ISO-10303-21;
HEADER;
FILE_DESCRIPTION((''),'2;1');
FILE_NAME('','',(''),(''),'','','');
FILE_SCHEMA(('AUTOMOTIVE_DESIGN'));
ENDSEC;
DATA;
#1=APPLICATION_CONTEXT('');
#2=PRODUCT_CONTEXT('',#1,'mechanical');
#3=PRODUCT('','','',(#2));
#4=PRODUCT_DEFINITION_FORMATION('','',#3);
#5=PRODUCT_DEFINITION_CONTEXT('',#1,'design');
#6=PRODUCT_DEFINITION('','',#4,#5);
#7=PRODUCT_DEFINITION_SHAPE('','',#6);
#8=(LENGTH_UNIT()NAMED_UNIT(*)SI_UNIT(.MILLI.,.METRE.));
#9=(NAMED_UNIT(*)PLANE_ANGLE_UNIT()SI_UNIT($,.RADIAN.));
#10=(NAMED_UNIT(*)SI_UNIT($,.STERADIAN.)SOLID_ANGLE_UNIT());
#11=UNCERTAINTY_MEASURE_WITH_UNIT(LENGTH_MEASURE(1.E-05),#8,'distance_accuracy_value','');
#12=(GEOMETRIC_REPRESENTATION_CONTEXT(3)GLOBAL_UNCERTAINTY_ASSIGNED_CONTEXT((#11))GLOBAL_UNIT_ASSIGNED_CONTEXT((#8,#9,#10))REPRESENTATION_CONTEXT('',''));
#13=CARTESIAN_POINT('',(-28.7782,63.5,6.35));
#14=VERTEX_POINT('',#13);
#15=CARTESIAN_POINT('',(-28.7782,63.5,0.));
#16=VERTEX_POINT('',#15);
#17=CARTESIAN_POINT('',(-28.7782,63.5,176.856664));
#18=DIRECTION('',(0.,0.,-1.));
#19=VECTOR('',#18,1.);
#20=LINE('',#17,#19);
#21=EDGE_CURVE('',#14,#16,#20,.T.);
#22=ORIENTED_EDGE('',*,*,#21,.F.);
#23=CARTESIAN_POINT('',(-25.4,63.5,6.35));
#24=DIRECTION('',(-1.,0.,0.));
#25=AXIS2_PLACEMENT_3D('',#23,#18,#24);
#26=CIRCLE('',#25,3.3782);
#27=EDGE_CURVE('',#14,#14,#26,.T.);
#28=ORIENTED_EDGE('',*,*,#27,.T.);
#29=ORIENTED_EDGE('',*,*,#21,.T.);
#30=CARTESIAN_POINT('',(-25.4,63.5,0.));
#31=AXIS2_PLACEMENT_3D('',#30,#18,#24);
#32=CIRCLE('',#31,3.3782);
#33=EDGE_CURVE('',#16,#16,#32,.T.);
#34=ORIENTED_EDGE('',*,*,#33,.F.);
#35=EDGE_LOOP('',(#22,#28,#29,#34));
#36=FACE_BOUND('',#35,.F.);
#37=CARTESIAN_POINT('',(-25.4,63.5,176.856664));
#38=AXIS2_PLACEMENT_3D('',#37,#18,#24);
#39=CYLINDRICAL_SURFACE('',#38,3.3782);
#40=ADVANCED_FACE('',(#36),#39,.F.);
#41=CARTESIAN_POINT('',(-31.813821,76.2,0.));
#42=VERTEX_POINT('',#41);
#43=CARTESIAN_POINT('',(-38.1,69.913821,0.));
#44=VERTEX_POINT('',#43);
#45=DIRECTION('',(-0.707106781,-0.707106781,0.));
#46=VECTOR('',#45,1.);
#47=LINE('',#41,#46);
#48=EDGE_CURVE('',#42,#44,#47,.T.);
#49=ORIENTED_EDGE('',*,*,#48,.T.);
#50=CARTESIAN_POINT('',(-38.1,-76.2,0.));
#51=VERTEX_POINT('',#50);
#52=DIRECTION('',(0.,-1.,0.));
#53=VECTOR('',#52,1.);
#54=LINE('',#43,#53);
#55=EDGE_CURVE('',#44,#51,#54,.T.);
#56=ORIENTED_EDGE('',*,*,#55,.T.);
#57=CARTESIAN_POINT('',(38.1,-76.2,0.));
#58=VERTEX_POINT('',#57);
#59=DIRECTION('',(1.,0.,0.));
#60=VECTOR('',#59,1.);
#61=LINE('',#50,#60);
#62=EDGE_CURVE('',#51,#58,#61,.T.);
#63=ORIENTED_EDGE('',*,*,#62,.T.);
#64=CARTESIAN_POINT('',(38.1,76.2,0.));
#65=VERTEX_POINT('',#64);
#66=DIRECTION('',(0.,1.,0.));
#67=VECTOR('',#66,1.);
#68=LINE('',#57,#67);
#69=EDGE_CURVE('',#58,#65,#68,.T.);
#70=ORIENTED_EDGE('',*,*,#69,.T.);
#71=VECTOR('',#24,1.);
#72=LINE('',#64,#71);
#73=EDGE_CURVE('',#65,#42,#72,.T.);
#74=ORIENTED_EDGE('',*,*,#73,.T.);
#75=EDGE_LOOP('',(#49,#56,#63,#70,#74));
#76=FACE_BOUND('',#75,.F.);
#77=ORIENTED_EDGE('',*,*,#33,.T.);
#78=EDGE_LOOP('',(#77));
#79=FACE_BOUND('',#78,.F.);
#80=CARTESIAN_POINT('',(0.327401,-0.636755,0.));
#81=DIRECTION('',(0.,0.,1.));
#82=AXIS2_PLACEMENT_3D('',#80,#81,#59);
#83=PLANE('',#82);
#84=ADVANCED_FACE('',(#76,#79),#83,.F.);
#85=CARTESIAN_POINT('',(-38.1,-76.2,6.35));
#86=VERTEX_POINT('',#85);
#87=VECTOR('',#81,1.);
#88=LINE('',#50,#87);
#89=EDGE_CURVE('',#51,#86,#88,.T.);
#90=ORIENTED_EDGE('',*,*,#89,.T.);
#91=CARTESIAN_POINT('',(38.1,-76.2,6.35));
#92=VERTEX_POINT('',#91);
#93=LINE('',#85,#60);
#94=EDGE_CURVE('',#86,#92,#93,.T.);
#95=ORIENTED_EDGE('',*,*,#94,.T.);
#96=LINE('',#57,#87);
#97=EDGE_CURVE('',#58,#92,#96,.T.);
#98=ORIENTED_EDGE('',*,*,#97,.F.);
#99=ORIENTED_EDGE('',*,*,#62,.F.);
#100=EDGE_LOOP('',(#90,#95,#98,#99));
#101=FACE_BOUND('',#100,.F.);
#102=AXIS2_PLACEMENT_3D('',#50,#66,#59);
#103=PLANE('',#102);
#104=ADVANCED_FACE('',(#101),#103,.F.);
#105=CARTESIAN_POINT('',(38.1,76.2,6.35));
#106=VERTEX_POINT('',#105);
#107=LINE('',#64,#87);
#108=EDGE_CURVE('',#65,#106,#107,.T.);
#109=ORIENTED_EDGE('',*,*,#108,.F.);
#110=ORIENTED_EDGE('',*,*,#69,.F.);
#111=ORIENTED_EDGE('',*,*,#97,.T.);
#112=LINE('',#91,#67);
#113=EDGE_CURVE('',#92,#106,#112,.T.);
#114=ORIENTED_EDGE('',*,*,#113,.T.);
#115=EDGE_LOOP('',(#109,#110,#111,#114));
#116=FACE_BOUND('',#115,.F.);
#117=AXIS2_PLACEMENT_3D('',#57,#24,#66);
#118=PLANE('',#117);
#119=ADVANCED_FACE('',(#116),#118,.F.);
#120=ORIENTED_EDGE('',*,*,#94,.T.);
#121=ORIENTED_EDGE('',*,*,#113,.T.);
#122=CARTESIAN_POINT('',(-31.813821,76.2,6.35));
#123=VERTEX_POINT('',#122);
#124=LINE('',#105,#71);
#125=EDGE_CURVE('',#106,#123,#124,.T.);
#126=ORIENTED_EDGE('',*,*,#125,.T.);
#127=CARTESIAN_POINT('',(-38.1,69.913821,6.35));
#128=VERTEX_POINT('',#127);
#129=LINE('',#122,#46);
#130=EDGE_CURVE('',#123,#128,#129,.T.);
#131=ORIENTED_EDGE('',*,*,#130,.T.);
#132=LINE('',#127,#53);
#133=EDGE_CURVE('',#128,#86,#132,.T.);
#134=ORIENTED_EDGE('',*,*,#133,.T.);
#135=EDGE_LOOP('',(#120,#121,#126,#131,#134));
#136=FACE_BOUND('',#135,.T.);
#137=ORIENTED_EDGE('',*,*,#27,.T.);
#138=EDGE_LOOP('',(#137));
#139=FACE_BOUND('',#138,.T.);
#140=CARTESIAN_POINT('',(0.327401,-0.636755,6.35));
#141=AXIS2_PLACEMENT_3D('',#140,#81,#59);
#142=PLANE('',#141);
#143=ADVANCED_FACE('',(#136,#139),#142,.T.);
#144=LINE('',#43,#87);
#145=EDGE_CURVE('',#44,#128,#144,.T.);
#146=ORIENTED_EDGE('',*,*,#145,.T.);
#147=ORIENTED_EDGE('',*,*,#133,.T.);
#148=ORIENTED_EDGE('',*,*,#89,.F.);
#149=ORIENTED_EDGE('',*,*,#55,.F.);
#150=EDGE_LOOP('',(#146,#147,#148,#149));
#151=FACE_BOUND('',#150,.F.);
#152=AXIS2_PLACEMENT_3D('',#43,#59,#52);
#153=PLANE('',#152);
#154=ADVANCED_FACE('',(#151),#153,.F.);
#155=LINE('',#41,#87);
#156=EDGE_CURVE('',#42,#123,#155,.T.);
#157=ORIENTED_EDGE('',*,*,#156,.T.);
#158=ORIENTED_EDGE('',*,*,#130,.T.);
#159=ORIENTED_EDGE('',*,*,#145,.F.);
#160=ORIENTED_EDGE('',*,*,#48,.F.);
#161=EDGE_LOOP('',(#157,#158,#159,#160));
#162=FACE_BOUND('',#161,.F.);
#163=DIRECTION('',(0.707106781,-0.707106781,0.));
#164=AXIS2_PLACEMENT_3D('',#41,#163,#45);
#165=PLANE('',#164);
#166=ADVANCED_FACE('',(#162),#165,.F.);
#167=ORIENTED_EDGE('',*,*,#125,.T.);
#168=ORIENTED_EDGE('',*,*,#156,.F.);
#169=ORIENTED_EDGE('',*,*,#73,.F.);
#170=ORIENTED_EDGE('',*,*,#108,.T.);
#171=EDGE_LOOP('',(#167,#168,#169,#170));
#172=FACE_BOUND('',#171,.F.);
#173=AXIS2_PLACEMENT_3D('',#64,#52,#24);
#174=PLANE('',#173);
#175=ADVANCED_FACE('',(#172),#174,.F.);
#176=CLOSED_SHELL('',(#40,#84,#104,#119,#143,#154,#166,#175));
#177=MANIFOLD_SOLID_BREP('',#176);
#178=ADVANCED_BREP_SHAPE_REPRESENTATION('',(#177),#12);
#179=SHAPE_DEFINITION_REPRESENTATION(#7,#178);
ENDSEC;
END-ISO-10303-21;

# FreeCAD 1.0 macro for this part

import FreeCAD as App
import Part
import Sketcher
from FreeCAD import Vector
Q = App.Units.Quantity

doc = App.newDocument("Part")
params = doc.addObject("Spreadsheet::Sheet", "Params")
for row, (alias, value) in enumerate([
    ("sketch1_width", "3 in"),
    ("sketch1_height", "6 in"),
    ("sketch1_length", "0.35 in"),
    ("pad1_length", "0.25 in"),
    ("sketch2_diameter", "0.266 in"),
    ("hole_diameter", "0.266 in"),
], start=1):
    params.set(f"A{row}", alias)
    params.set(f"B{row}", "=" + value)
    params.setAlias(f"B{row}", alias)

body = doc.addObject("PartDesign::Body", "Body")

sketch1 = body.newObject("Sketcher::SketchObject", "Sketch")
sketch1.AttachmentSupport = (doc.getObject("XY_Plane"), [""])
sketch1.MapMode = "FlatFace"
sketch1.addGeometry([
    Part.LineSegment(Vector(38, 76, 0), Vector(-32, 76, 0)),
    Part.LineSegment(Vector(-32, 76, 0), Vector(-38, 70, 0)),
    Part.LineSegment(Vector(-38, 70, 0), Vector(-38, -76, 0)),
    Part.LineSegment(Vector(-38, -76, 0), Vector(38, -76, 0)),
    Part.LineSegment(Vector(38, -76, 0), Vector(38, 76, 0)),
], False)
sketch1.addConstraint([
    Sketcher.Constraint("Coincident", 0, 2, 1, 1),
    Sketcher.Constraint("Coincident", 1, 2, 2, 1),
    Sketcher.Constraint("Coincident", 2, 2, 3, 1),
    Sketcher.Constraint("Coincident", 3, 2, 4, 1),
    Sketcher.Constraint("Coincident", 4, 2, 0, 1),
    Sketcher.Constraint("Horizontal", 0),
    Sketcher.Constraint("Vertical", 2),
    Sketcher.Constraint("Horizontal", 3),
    Sketcher.Constraint("Vertical", 4),
    Sketcher.Constraint("Symmetric", 2, 2, 4, 2, -1, 1),
    Sketcher.Constraint("DistanceX", 3, 1, 3, 2, Q("3 in")),
    Sketcher.Constraint("DistanceY", 4, 1, 4, 2, Q("6 in")),
    Sketcher.Constraint("Angle", 1, Q("-135 deg")),
    Sketcher.Constraint("Distance", 1, Q("0.35 in")),
])
sketch1.setExpression("Constraints[10]", "Params.sketch1_width")
sketch1.setExpression("Constraints[11]", "Params.sketch1_height")
sketch1.setExpression("Constraints[13]", "Params.sketch1_length")
pad1 = body.newObject("PartDesign::Pad", "Pad")
pad1.Profile = sketch1
pad1.setExpression("Length", "Params.pad1_length")

sketch2 = body.newObject("Sketcher::SketchObject", "Sketch001")
sketch2.AttachmentSupport = (doc.getObject("XY_Plane"), [""])
sketch2.MapMode = "FlatFace"
sketch2.AttachmentOffset = App.Placement(Vector(0, 0, 0.25 * 25.4), App.Rotation())
sketch2.addGeometry(Part.Circle(Vector(-25.4, 63.5, 0), Vector(0, 0, 1), 3.4), False)
sketch2.addConstraint([
    Sketcher.Constraint("Diameter", 0, Q("0.266 in")),
    Sketcher.Constraint("DistanceX", 0, 3, -1, 1, Q("1 in")),
    Sketcher.Constraint("DistanceY", -1, 1, 0, 3, Q("2.5 in")),
])
sketch2.setExpression("Constraints[0]", "Params.sketch2_diameter")
doc.recompute()
hole = body.newObject("PartDesign::Hole", "Hole")
hole.Profile = sketch2
hole.ThreadType = "None"
hole.setExpression("Diameter", "Params.hole_diameter")
hole.DepthType = "ThroughAll"

doc.recompute()
